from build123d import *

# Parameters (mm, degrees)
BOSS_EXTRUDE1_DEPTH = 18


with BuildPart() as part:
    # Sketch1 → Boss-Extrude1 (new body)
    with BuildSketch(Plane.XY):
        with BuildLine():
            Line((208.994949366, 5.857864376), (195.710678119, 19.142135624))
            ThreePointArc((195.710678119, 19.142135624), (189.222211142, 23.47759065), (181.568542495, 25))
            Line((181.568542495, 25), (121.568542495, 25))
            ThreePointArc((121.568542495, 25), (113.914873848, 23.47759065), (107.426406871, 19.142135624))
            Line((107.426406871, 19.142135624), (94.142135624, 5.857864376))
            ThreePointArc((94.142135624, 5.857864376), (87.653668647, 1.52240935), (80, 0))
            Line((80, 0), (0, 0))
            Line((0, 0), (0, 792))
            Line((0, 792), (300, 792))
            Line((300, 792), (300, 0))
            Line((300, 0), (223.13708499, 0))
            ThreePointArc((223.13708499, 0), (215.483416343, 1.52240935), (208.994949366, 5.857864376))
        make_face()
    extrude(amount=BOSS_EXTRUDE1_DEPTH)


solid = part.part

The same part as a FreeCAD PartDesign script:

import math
import FreeCAD as App
import Part
import Sketcher
Q = App.Units.Quantity

doc = App.newDocument("Part")
params = doc.addObject("Spreadsheet::Sheet", "Params")
for row, (alias, value) in enumerate([
    ("sketch1_radius", "20 mm"),
    ("sketch1_width", "300 mm"),
    ("sketch1_width2", "80 mm"),
    ("sketch1_width3", "60 mm"),
    ("sketch1_height", "792 mm"),
    ("pad1_length", "18 mm"),
], start=1):
    params.set(f"A{row}", alias)
    params.set(f"B{row}", "=" + value)
    params.setAlias(f"B{row}", alias)

body = doc.addObject("PartDesign::Body", "Body")

# Sketch on XY plane
sketch1 = body.newObject("Sketcher::SketchObject", "Sketch")
sketch1.AttachmentSupport = (doc.getObject("XY_Plane"), [""])
sketch1.MapMode = "FlatFace"
sketch1.addGeometry(Part.LineSegment(App.Vector(196, 19, 0), App.Vector(209, 6, 0)), False)
sketch1.addGeometry(Part.ArcOfCircle(Part.Circle(App.Vector(223, 20, 0), App.Vector(0, 0, 1), 20), math.radians(-135), math.radians(-90)), False)
sketch1.addGeometry(Part.LineSegment(App.Vector(223, 0, 0), App.Vector(300, 0, 0)), False)
sketch1.addGeometry(Part.LineSegment(App.Vector(300, 0, 0), App.Vector(300, 792, 0)), False)
sketch1.addGeometry(Part.LineSegment(App.Vector(300, 792, 0), App.Vector(0, 792, 0)), False)
sketch1.addGeometry(Part.LineSegment(App.Vector(0, 792, 0), App.Vector(0, 0, 0)), False)
sketch1.addGeometry(Part.LineSegment(App.Vector(0, 0, 0), App.Vector(80, 0, 0)), False)
sketch1.addGeometry(Part.ArcOfCircle(Part.Circle(App.Vector(80, 20, 0), App.Vector(0, 0, 1), 20), math.radians(-90), math.radians(-45)), False)
sketch1.addGeometry(Part.LineSegment(App.Vector(94, 6, 0), App.Vector(107, 19, 0)), False)
sketch1.addGeometry(Part.ArcOfCircle(Part.Circle(App.Vector(122, 5, 0), App.Vector(0, 0, 1), 20), math.radians(90), math.radians(135)), False)
sketch1.addGeometry(Part.LineSegment(App.Vector(122, 25, 0), App.Vector(182, 25, 0)), False)
sketch1.addGeometry(Part.ArcOfCircle(Part.Circle(App.Vector(182, 5, 0), App.Vector(0, 0, 1), 20), math.radians(45), math.radians(90)), False)
sketch1.addConstraint(Sketcher.Constraint("Tangent", 0, 2, 1, 1))
sketch1.addConstraint(Sketcher.Constraint("Tangent", 1, 2, 2, 1))
sketch1.addConstraint(Sketcher.Constraint("Coincident", 2, 2, 3, 1))
sketch1.addConstraint(Sketcher.Constraint("Coincident", 3, 2, 4, 1))
sketch1.addConstraint(Sketcher.Constraint("Coincident", 4, 2, 5, 1))
sketch1.addConstraint(Sketcher.Constraint("Coincident", 5, 2, 6, 1))
sketch1.addConstraint(Sketcher.Constraint("Tangent", 6, 2, 7, 1))
sketch1.addConstraint(Sketcher.Constraint("Tangent", 7, 2, 8, 1))
sketch1.addConstraint(Sketcher.Constraint("Tangent", 8, 2, 9, 2))
sketch1.addConstraint(Sketcher.Constraint("Tangent", 9, 1, 10, 1))
sketch1.addConstraint(Sketcher.Constraint("Tangent", 10, 2, 11, 2))
sketch1.addConstraint(Sketcher.Constraint("Tangent", 11, 1, 0, 1))
sketch1.addConstraint(Sketcher.Constraint("Horizontal", 2))
sketch1.addConstraint(Sketcher.Constraint("Vertical", 3))
sketch1.addConstraint(Sketcher.Constraint("Horizontal", 4))
sketch1.addConstraint(Sketcher.Constraint("Vertical", 5))
sketch1.addConstraint(Sketcher.Constraint("Horizontal", 6))
sketch1.addConstraint(Sketcher.Constraint("Horizontal", 10))
sketch1.addConstraint(Sketcher.Constraint("Coincident", 5, 2, -1, 1))
sketch1.addConstraint(Sketcher.Constraint("Equal", 1, 7))
sketch1.addConstraint(Sketcher.Constraint("Equal", 7, 9))
sketch1.addConstraint(Sketcher.Constraint("Equal", 9, 11))
sketch1.addConstraint(Sketcher.Constraint("PointOnObject", 1, 2, -1))
sketch1.addConstraint(Sketcher.Constraint("Perpendicular", 0, 8))
sketch1.addConstraint(Sketcher.Constraint("Horizontal", 0, 2, 7, 2))
sketch1.addConstraint(Sketcher.Constraint("Radius", 1, Q("20 mm")))
sketch1.addConstraint(Sketcher.Constraint("DistanceX", 4, 2, 4, 1, Q("300 mm")))
sketch1.addConstraint(Sketcher.Constraint("DistanceX", 6, 1, 6, 2, Q("80 mm")))
sketch1.addConstraint(Sketcher.Constraint("DistanceX", 10, 1, 10, 2, Q("60 mm")))
sketch1.addConstraint(Sketcher.Constraint("DistanceY", 3, 1, 3, 2, Q("792 mm")))
sketch1.addConstraint(Sketcher.Constraint("DistanceY", -1, 1, 9, 3, Q("5 mm")))
sketch1.setExpression("Constraints[25]", "Params.sketch1_radius")
sketch1.setExpression("Constraints[26]", "Params.sketch1_width")
sketch1.setExpression("Constraints[27]", "Params.sketch1_width2")
sketch1.setExpression("Constraints[28]", "Params.sketch1_width3")
sketch1.setExpression("Constraints[29]", "Params.sketch1_height")
pad1 = body.newObject("PartDesign::Pad", "Pad")
pad1.Profile = sketch1
pad1.setExpression("Length", "Params.pad1_length")

doc.recompute()
